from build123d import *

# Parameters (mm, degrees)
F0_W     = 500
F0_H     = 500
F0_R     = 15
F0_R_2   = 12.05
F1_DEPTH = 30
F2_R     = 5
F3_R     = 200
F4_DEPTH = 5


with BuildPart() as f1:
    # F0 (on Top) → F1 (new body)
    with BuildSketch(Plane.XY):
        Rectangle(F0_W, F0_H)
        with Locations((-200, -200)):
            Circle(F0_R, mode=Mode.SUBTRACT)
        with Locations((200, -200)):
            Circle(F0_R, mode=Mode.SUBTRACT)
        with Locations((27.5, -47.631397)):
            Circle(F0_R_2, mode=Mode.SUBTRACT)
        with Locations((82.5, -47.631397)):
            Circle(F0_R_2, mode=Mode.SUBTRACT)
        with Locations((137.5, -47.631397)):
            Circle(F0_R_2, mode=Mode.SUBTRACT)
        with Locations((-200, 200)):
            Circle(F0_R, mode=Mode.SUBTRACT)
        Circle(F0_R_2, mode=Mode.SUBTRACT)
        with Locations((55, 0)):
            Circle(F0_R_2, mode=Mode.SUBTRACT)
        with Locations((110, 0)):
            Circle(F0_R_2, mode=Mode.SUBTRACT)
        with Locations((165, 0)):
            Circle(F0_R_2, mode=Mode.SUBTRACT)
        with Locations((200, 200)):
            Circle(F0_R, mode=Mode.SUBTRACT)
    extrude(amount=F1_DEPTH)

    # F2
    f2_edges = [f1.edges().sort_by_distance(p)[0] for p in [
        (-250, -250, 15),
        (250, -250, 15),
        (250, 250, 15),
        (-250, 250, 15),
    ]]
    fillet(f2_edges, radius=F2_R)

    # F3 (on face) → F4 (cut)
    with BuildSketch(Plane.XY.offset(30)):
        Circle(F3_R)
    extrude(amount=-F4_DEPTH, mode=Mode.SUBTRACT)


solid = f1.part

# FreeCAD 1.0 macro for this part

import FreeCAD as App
import Part
import Sketcher
Q = App.Units.Quantity


def edges_at(feature, points):
    """Names of the edges that pass closest to the given points."""
    edges = feature.Shape.Edges
    near = lambda p: min(range(len(edges)), key=lambda i: edges[i].distToShape(Part.Vertex(*p))[0])
    return sorted({f"Edge{near(p) + 1}" for p in points})


def add_polygon(sketch, points):
    """Adds a closed chain of lines whose ends are joined by coincident constraints."""
    first, n = sketch.GeometryCount, len(points)
    for a, b in zip(points, points[1:] + points[:1]):
        sketch.addGeometry(Part.LineSegment(App.Vector(*a, 0), App.Vector(*b, 0)), False)
    for i in range(n):
        sketch.addConstraint(Sketcher.Constraint("Coincident", first + i, 2, first + (i + 1) % n, 1))

doc = App.newDocument("Part")
params = doc.addObject("Spreadsheet::Sheet", "Params")
for row, (alias, value) in enumerate([
    ("sketch1_diameter", "30 mm"),
    ("sketch1_diameter2", "24.1 mm"),
    ("sketch1_width", "500 mm"),
    ("pad1_length", "30 mm"),
    ("fillet_radius", "5 mm"),
    ("sketch2_diameter", "400 mm"),
    ("pocket1_length", "5 mm"),
], start=1):
    params.set(f"A{row}", alias)
    params.set(f"B{row}", "=" + value)
    params.setAlias(f"B{row}", alias)

body = doc.addObject("PartDesign::Body", "Body")

# Sketch on XY plane
sketch1 = doc.addObject("Sketcher::SketchObject", "Sketch")
body.addObject(sketch1)
sketch1.AttachmentSupport = (doc.XY_Plane, [""])
sketch1.MapMode = "FlatFace"
add_polygon(sketch1, [(-250, 250), (-250, -250), (250, -250), (250, 250)])  # lines 0-3
sketch1.addGeometry(Part.Circle(App.Vector(-200, -200, 0), App.Vector(0, 0, 1), 15), False)  # 4
sketch1.addGeometry(Part.Circle(App.Vector(200, -200, 0), App.Vector(0, 0, 1), 15), False)  # 5
sketch1.addGeometry(Part.Circle(App.Vector(28, -48, 0), App.Vector(0, 0, 1), 12), False)  # 6
sketch1.addGeometry(Part.Circle(App.Vector(82, -48, 0), App.Vector(0, 0, 1), 12), False)  # 7
sketch1.addGeometry(Part.Circle(App.Vector(138, -48, 0), App.Vector(0, 0, 1), 12), False)  # 8
sketch1.addGeometry(Part.Circle(App.Vector(-200, 200, 0), App.Vector(0, 0, 1), 15), False)  # 9
sketch1.addGeometry(Part.Circle(App.Vector(0, 0, 0), App.Vector(0, 0, 1), 12), False)  # 10
sketch1.addGeometry(Part.Circle(App.Vector(55, 0, 0), App.Vector(0, 0, 1), 12), False)  # 11
sketch1.addGeometry(Part.Circle(App.Vector(110, 0, 0), App.Vector(0, 0, 1), 12), False)  # 12
sketch1.addGeometry(Part.Circle(App.Vector(165, 0, 0), App.Vector(0, 0, 1), 12), False)  # 13
sketch1.addGeometry(Part.Circle(App.Vector(200, 200, 0), App.Vector(0, 0, 1), 15), False)  # 14
sketch1.addConstraint([
    Sketcher.Constraint("Vertical", 0),
    Sketcher.Constraint("Horizontal", 1),
    Sketcher.Constraint("Vertical", 2),
    Sketcher.Constraint("Horizontal", 3),
    Sketcher.Constraint("Coincident", 10, 3, -1, 1),
    Sketcher.Constraint("Equal", 4, 5),
    Sketcher.Constraint("Equal", 6, 7),
    Sketcher.Constraint("Equal", 7, 8),
    Sketcher.Constraint("Equal", 5, 9),
    Sketcher.Constraint("Equal", 8, 10),
    Sketcher.Constraint("Equal", 10, 11),
    Sketcher.Constraint("Equal", 11, 12),
    Sketcher.Constraint("Equal", 12, 13),
    Sketcher.Constraint("Equal", 9, 14),
    Sketcher.Constraint("Symmetric", 5, 3, 9, 3, -1, 1),
    Sketcher.Constraint("Symmetric", 4, 3, 14, 3, -1, 1),
    Sketcher.Constraint("Symmetric", 0, 2, 2, 2, -1, 1),
    Sketcher.Constraint("Symmetric", 4, 3, 5, 3, -2),
    Sketcher.Constraint("PointOnObject", 11, 3, -1),
    Sketcher.Constraint("PointOnObject", 12, 3, -1),
    Sketcher.Constraint("PointOnObject", 13, 3, -1),
    Sketcher.Constraint("Horizontal", 6, 3, 7, 3),
    Sketcher.Constraint("Horizontal", 7, 3, 8, 3),
    Sketcher.Constraint("Equal", 3, 0),
    Sketcher.Constraint("Diameter", 4, Q("30 mm")),
    Sketcher.Constraint("Diameter", 6, Q("24.1 mm")),
    Sketcher.Constraint("DistanceX", 1, 1, 1, 2, Q("500 mm")),
    Sketcher.Constraint("DistanceX", 4, 3, -1, 1, Q("200 mm")),
    Sketcher.Constraint("DistanceY", 4, 3, -1, 1, Q("200 mm")),
    Sketcher.Constraint("DistanceX", -1, 1, 11, 3, Q("55 mm")),
    Sketcher.Constraint("DistanceX", -1, 1, 12, 3, Q("110 mm")),
    Sketcher.Constraint("DistanceX", -1, 1, 13, 3, Q("165 mm")),
    Sketcher.Constraint("DistanceX", 6, 3, 7, 3, Q("55 mm")),
    Sketcher.Constraint("DistanceX", 7, 3, 8, 3, Q("55 mm")),
    Sketcher.Constraint("DistanceX", -1, 1, 6, 3, Q("27.5 mm")),
    Sketcher.Constraint("DistanceY", 6, 3, -1, 1, Q("47.631397 mm")),
])
sketch1.setExpression("Constraints[28]", "Params.sketch1_diameter")
sketch1.setExpression("Constraints[29]", "Params.sketch1_diameter2")
sketch1.setExpression("Constraints[30]", "Params.sketch1_width")
pad1 = doc.addObject("PartDesign::Pad", "Pad")
body.addObject(pad1)
pad1.Profile = sketch1
pad1.setExpression("Length", "Params.pad1_length")
doc.recompute()

fillet = doc.addObject("PartDesign::Fillet", "Fillet")
body.addObject(fillet)
fillet.Base = (pad1, edges_at(pad1, [
    (-250, -250, 15),
    (250, -250, 15),
    (250, 250, 15),
    (-250, 250, 15),
]))
fillet.setExpression("Radius", "Params.fillet_radius")

# Sketch on XY plane
sketch2 = doc.addObject("Sketcher::SketchObject", "Sketch001")
body.addObject(sketch2)
sketch2.AttachmentSupport = (doc.XY_Plane, [""])
sketch2.MapMode = "FlatFace"
sketch2.AttachmentOffset = App.Placement(App.Vector(0, 0, 30), App.Rotation())
sketch2.addGeometry(Part.Circle(App.Vector(0, 0, 0), App.Vector(0, 0, 1), 200), False)
sketch2.addConstraint([
    Sketcher.Constraint("Coincident", 0, 3, -1, 1),
    Sketcher.Constraint("Diameter", 0, Q("400 mm")),
])
sketch2.setExpression("Constraints[1]", "Params.sketch2_diameter")
pocket1 = doc.addObject("PartDesign::Pocket", "Pocket")
body.addObject(pocket1)
pocket1.Profile = sketch2
pocket1.setExpression("Length", "Params.pocket1_length")

doc.recompute()
